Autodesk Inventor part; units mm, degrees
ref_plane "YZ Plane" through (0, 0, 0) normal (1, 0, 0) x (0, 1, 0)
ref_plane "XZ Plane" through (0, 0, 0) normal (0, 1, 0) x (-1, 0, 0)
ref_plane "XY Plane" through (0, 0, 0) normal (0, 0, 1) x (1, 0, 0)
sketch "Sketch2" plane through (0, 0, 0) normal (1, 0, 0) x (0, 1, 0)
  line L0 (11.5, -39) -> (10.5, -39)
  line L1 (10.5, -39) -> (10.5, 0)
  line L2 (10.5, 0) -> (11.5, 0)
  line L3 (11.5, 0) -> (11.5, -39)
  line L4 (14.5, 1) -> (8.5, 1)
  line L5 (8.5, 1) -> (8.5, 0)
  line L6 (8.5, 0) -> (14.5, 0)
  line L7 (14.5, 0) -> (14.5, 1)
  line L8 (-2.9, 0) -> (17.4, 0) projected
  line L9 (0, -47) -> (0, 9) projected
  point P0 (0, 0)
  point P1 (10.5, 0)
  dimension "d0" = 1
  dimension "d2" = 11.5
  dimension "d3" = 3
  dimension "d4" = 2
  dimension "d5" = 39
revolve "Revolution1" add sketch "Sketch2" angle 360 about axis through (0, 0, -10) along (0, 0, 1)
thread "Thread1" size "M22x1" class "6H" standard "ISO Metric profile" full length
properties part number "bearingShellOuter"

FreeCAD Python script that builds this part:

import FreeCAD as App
import Part
import Sketcher
Q = App.Units.Quantity

doc = App.newDocument("Part")
params = doc.addObject("Spreadsheet::Sheet", "Params")
for row, (alias, value) in enumerate([
    ("sketch1_width", "1 mm"),
    ("sketch1_width2", "3 mm"),
    ("sketch1_width3", "2 mm"),
    ("sketch1_height", "39 mm"),
    ("revolution_angle", "360 deg"),
], start=1):
    params.set(f"A{row}", alias)
    params.set(f"B{row}", "=" + value)
    params.setAlias(f"B{row}", alias)

body = doc.addObject("PartDesign::Body", "Body")

sketch1 = body.newObject("Sketcher::SketchObject", "Sketch")
sketch1.AttachmentSupport = (doc.getObject("YZ_Plane"), [""])
sketch1.MapMode = "FlatFace"
sketch1.addGeometry([
    Part.LineSegment(App.Vector(10.5, -39, 0), App.Vector(11.5, -39, 0)),
    Part.LineSegment(App.Vector(11.5, -39, 0), App.Vector(11.5, 0, 0)),
    Part.LineSegment(App.Vector(11.5, 0, 0), App.Vector(14.5, 0, 0)),
    Part.LineSegment(App.Vector(14.5, 0, 0), App.Vector(14.5, 1, 0)),
    Part.LineSegment(App.Vector(14.5, 1, 0), App.Vector(8.5, 1, 0)),
    Part.LineSegment(App.Vector(8.5, 1, 0), App.Vector(8.5, 0, 0)),
    Part.LineSegment(App.Vector(8.5, 0, 0), App.Vector(10.5, 0, 0)),
    Part.LineSegment(App.Vector(10.5, 0, 0), App.Vector(10.5, -39, 0)),
], False)
sketch1.addConstraint([
    Sketcher.Constraint("Coincident", 0, 2, 1, 1),
    Sketcher.Constraint("Coincident", 1, 2, 2, 1),
    Sketcher.Constraint("Coincident", 2, 2, 3, 1),
    Sketcher.Constraint("Coincident", 3, 2, 4, 1),
    Sketcher.Constraint("Coincident", 4, 2, 5, 1),
    Sketcher.Constraint("Coincident", 5, 2, 6, 1),
    Sketcher.Constraint("Coincident", 6, 2, 7, 1),
    Sketcher.Constraint("Coincident", 7, 2, 0, 1),
    Sketcher.Constraint("Horizontal", 0),
    Sketcher.Constraint("Vertical", 1),
    Sketcher.Constraint("Horizontal", 2),
    Sketcher.Constraint("Vertical", 3),
    Sketcher.Constraint("Horizontal", 4),
    Sketcher.Constraint("Vertical", 5),
    Sketcher.Constraint("Horizontal", 6),
    Sketcher.Constraint("Vertical", 7),
    Sketcher.Constraint("PointOnObject", 1, 2, -1),
    Sketcher.Constraint("PointOnObject", 5, 2, -1),
    Sketcher.Constraint("Equal", 0, 3),
    Sketcher.Constraint("DistanceX", 0, 1, 0, 2, Q("1 mm")),
    Sketcher.Constraint("DistanceX", 2, 1, 2, 2, Q("3 mm")),
    Sketcher.Constraint("DistanceX", 6, 1, 6, 2, Q("2 mm")),
    Sketcher.Constraint("DistanceY", 1, 1, 1, 2, Q("39 mm")),
    Sketcher.Constraint("DistanceX", -1, 1, 0, 2, Q("11.5 mm")),
])
sketch1.setExpression("Constraints[19]", "Params.sketch1_width")
sketch1.setExpression("Constraints[20]", "Params.sketch1_width2")
sketch1.setExpression("Constraints[21]", "Params.sketch1_width3")
sketch1.setExpression("Constraints[22]", "Params.sketch1_height")
revolution = body.newObject("PartDesign::Revolution", "Revolution")
revolution.Profile = sketch1
revolution.ReferenceAxis = (sketch1, ["V_Axis"])
revolution.setExpression("Angle", "Params.revolution_angle")

doc.recompute()
